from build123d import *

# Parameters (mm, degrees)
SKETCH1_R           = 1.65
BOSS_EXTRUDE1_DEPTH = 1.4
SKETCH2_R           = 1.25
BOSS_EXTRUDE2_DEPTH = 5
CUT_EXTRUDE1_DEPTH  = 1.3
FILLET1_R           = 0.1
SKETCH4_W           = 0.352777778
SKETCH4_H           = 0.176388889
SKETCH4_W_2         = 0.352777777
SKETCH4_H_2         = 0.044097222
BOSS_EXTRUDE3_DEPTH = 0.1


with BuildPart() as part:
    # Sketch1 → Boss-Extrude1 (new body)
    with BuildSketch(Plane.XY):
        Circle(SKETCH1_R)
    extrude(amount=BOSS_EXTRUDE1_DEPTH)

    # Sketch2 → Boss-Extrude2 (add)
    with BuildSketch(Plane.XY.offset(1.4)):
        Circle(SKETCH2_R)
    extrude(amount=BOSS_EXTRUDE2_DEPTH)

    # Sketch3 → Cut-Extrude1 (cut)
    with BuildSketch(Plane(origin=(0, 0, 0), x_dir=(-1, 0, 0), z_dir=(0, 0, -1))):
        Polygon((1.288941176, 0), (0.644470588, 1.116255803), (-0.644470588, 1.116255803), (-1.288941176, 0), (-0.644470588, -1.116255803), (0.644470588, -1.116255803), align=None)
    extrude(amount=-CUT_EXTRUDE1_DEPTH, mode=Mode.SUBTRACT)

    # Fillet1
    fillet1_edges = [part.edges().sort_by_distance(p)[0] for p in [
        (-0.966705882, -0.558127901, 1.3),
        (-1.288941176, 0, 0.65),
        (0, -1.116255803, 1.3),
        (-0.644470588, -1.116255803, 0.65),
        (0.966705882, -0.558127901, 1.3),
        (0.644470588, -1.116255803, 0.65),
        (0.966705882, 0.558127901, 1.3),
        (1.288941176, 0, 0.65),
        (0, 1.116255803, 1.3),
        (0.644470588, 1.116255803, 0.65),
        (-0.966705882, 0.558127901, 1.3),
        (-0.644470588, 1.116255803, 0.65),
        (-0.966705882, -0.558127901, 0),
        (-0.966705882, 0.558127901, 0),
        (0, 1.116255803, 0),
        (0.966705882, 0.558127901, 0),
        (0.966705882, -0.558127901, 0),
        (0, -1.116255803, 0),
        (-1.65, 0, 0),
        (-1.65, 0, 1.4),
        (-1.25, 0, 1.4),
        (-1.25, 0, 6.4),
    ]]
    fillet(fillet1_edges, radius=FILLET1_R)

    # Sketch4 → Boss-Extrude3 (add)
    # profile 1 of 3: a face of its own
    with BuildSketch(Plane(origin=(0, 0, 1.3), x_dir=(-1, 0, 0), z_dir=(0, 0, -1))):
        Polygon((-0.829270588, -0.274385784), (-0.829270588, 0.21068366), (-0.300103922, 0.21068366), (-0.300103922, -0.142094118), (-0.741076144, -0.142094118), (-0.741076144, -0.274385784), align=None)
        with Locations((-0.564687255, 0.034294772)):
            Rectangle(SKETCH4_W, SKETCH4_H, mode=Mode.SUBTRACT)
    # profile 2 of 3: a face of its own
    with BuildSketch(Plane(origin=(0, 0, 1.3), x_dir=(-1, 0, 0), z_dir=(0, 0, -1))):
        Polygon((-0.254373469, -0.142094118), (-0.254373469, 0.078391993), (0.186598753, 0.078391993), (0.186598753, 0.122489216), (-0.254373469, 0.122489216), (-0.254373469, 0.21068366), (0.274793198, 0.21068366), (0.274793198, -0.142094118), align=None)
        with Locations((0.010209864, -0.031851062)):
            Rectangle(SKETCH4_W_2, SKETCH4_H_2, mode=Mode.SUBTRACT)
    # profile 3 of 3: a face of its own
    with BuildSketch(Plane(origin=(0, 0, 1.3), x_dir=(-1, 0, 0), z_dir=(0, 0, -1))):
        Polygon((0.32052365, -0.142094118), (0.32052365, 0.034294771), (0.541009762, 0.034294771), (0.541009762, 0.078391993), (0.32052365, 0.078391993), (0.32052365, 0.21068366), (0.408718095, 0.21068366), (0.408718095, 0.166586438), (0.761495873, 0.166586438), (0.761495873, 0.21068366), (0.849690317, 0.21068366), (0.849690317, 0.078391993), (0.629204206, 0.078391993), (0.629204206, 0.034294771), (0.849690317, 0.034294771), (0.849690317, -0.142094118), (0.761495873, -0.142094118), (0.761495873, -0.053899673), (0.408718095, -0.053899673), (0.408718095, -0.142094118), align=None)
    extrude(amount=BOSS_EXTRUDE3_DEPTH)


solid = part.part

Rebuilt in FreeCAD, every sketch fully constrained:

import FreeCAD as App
import Part
import Sketcher
from FreeCAD import Vector
Q = App.Units.Quantity


def add_polygon(sketch, points):
    """Adds a closed chain of lines whose ends are joined by coincident constraints."""
    first, n = sketch.GeometryCount, len(points)
    for a, b in zip(points, points[1:] + points[:1]):
        sketch.addGeometry(Part.LineSegment(App.Vector(*a, 0), App.Vector(*b, 0)), False)
    for i in range(n):
        sketch.addConstraint(Sketcher.Constraint("Coincident", first + i, 2, first + (i + 1) % n, 1))

doc = App.newDocument("Part")
params = doc.addObject("Spreadsheet::Sheet", "Params")
for row, (alias, value) in enumerate([
    ("sketch1_diameter", "3.3 mm"),
    ("pad1_length", "1.4 mm"),
    ("sketch2_diameter", "2.5 mm"),
    ("pad2_length", "5 mm"),
    ("pocket1_length", "1.3 mm"),
    ("fillet_radius", "0.1 mm"),
    ("pad3_length", "0.1 mm"),
], start=1):
    params.set(f"A{row}", alias)
    params.set(f"B{row}", "=" + value)
    params.setAlias(f"B{row}", alias)

body = doc.addObject("PartDesign::Body", "Body")

# Sketch on XY plane
sketch1 = body.newObject("Sketcher::SketchObject", "Sketch")
sketch1.AttachmentSupport = (doc.getObject("XY_Plane"), [""])
sketch1.MapMode = "FlatFace"
sketch1.addGeometry(Part.Circle(Vector(0, 0, 0), Vector(0, 0, 1), 1.6), False)
sketch1.addConstraint([
    Sketcher.Constraint("Coincident", 0, 3, -1, 1),
    Sketcher.Constraint("Diameter", 0, Q("3.3 mm")),
])
sketch1.setExpression("Constraints[1]", "Params.sketch1_diameter")
pad1 = body.newObject("PartDesign::Pad", "Pad")
pad1.Profile = sketch1
pad1.setExpression("Length", "Params.pad1_length")

# Sketch on XY plane
sketch2 = body.newObject("Sketcher::SketchObject", "Sketch001")
sketch2.AttachmentSupport = (doc.getObject("XY_Plane"), [""])
sketch2.MapMode = "FlatFace"
sketch2.AttachmentOffset = App.Placement(Vector(0, 0, 1.4), App.Rotation())
sketch2.addGeometry(Part.Circle(Vector(0, 0, 0), Vector(0, 0, 1), 1.2), False)
sketch2.addConstraint([
    Sketcher.Constraint("Coincident", 0, 3, -1, 1),
    Sketcher.Constraint("Diameter", 0, Q("2.5 mm")),
])
sketch2.setExpression("Constraints[1]", "Params.sketch2_diameter")
pad2 = body.newObject("PartDesign::Pad", "Pad001")
pad2.Profile = sketch2
pad2.setExpression("Length", "Params.pad2_length")

# Sketch on XY plane
sketch3 = body.newObject("Sketcher::SketchObject", "Sketch002")
sketch3.AttachmentSupport = (doc.getObject("XY_Plane"), [""])
sketch3.MapMode = "FlatFace"
add_polygon(sketch3, [(-1.3, 0), (-0.6, 1.1), (0.6, 1.1), (1.3, 0), (0.6, -1.1), (-0.6, -1.1)])  # lines 0-5
sketch3.addConstraint([
    Sketcher.Constraint("Horizontal", 1),
    Sketcher.Constraint("Horizontal", 4),
    Sketcher.Constraint("Symmetric", 0, 2, 3, 2, -1, 1),
    Sketcher.Constraint("Symmetric", 2, 2, 5, 2, -1, 1),
    Sketcher.Constraint("PointOnObject", 2, 2, -1),
    Sketcher.Constraint("Parallel", 2, 5),
    Sketcher.Constraint("Vertical", 1, 2, 3, 2),
    Sketcher.Constraint("Angle", 0, Q("60 deg")),
    Sketcher.Constraint("DistanceX", 1, 1, 1, 2, Q("1.288941 mm")),
    Sketcher.Constraint("Distance", 0, Q("1.288941 mm")),
])
pocket1 = body.newObject("PartDesign::Pocket", "Pocket")
pocket1.Profile = sketch3
pocket1.setExpression("Length", "Params.pocket1_length")
pocket1.Reversed = True
doc.recompute()

fillet = body.newObject("PartDesign::Fillet", "Fillet")
fillet.Base = (pocket1, ["Edge1"])
fillet.UseAllEdges = True
fillet.setExpression("Radius", "Params.fillet_radius")

# Sketch on XY plane
sketch4 = body.newObject("Sketcher::SketchObject", "Sketch003")
sketch4.AttachmentSupport = (doc.getObject("XY_Plane"), [""])
sketch4.MapMode = "FlatFace"
sketch4.AttachmentOffset = App.Placement(Vector(0, 0, 1.3), App.Rotation())
add_polygon(sketch4, [(0.829, 0.211), (0.829, -0.274), (0.741, -0.274), (0.741, -0.142), (0.3, -0.142), (0.3, 0.211)])  # lines 0-5
add_polygon(sketch4, [(0.741, -0.054), (0.741, 0.122), (0.388, 0.122), (0.388, -0.054)])  # lines 6-9
add_polygon(sketch4, [(0.254, 0.078), (0.254, -0.142), (-0.275, -0.142), (-0.275, 0.211), (0.254, 0.211), (0.254, 0.122), (-0.187, 0.122), (-0.187, 0.078)])  # lines 10-17
add_polygon(sketch4, [(0.166, -0.054), (0.166, -0.01), (-0.187, -0.01), (-0.187, -0.054)])  # lines 18-21
add_polygon(sketch4, [(-0.321, 0.034), (-0.321, -0.142), (-0.409, -0.142), (-0.409, -0.054), (-0.761, -0.054), (-0.761, -0.142), (-0.85, -0.142), (-0.85, 0.034), (-0.629, 0.034), (-0.629, 0.078), (-0.85, 0.078), (-0.85, 0.211), (-0.761, 0.211), (-0.761, 0.167), (-0.409, 0.167), (-0.409, 0.211), (-0.321, 0.211), (-0.321, 0.078), (-0.541, 0.078), (-0.541, 0.034)])  # lines 22-41
sketch4.addConstraint([
    Sketcher.Constraint("Vertical", 0),
    Sketcher.Constraint("Horizontal", 1),
    Sketcher.Constraint("Vertical", 2),
    Sketcher.Constraint("Horizontal", 3),
    Sketcher.Constraint("Vertical", 4),
    Sketcher.Constraint("Horizontal", 5),
    Sketcher.Constraint("Vertical", 6),
    Sketcher.Constraint("Horizontal", 7),
    Sketcher.Constraint("Vertical", 8),
    Sketcher.Constraint("Horizontal", 9),
    Sketcher.Constraint("Vertical", 10),
    Sketcher.Constraint("Horizontal", 11),
    Sketcher.Constraint("Vertical", 12),
    Sketcher.Constraint("Horizontal", 13),
    Sketcher.Constraint("Vertical", 14),
    Sketcher.Constraint("Horizontal", 15),
    Sketcher.Constraint("Vertical", 16),
    Sketcher.Constraint("Horizontal", 17),
    Sketcher.Constraint("Vertical", 18),
    Sketcher.Constraint("Horizontal", 19),
    Sketcher.Constraint("Vertical", 20),
    Sketcher.Constraint("Horizontal", 21),
    Sketcher.Constraint("Vertical", 22),
    Sketcher.Constraint("Horizontal", 23),
    Sketcher.Constraint("Vertical", 24),
    Sketcher.Constraint("Horizontal", 25),
    Sketcher.Constraint("Vertical", 26),
    Sketcher.Constraint("Horizontal", 27),
    Sketcher.Constraint("Vertical", 28),
    Sketcher.Constraint("Horizontal", 29),
    Sketcher.Constraint("Vertical", 30),
    Sketcher.Constraint("Horizontal", 31),
    Sketcher.Constraint("Vertical", 32),
    Sketcher.Constraint("Horizontal", 33),
    Sketcher.Constraint("Vertical", 34),
    Sketcher.Constraint("Horizontal", 35),
    Sketcher.Constraint("Vertical", 36),
    Sketcher.Constraint("Horizontal", 37),
    Sketcher.Constraint("Vertical", 38),
    Sketcher.Constraint("Horizontal", 39),
    Sketcher.Constraint("Vertical", 40),
    Sketcher.Constraint("Horizontal", 41),
    Sketcher.Constraint("Horizontal", 3, 2, 10, 2),
    Sketcher.Constraint("Horizontal", 5, 2, 12, 2),
    Sketcher.Constraint("Horizontal", 7, 2, 14, 2),
    Sketcher.Constraint("Horizontal", 9, 2, 20, 2),
    Sketcher.Constraint("Horizontal", 11, 2, 22, 2),
    Sketcher.Constraint("Horizontal", 21, 2, 24, 2),
    Sketcher.Constraint("Horizontal", 23, 2, 26, 2),
    Sketcher.Constraint("Horizontal", 17, 2, 30, 2),
    Sketcher.Constraint("Horizontal", 13, 2, 32, 2),
    Sketcher.Constraint("Horizontal", 33, 2, 36, 2),
    Sketcher.Constraint("Horizontal", 31, 2, 38, 2),
    Sketcher.Constraint("Horizontal", 29, 2, 40, 2),
    Sketcher.Constraint("Vertical", 2, 2, 6, 2),
    Sketcher.Constraint("Vertical", 10, 2, 13, 2),
    Sketcher.Constraint("Vertical", 16, 2, 19, 2),
    Sketcher.Constraint("Vertical", 28, 2, 31, 2),
    Sketcher.Constraint("Vertical", 26, 2, 33, 2),
    Sketcher.Constraint("Vertical", 24, 2, 35, 2),
    Sketcher.Constraint("Vertical", 22, 2, 37, 2),
    Sketcher.Constraint("Equal", 5, 11),
    Sketcher.Constraint("Equal", 3, 15),
    Sketcher.Constraint("Equal", 9, 19),
    Sketcher.Constraint("Equal", 1, 23),
    Sketcher.Constraint("Equal", 21, 25),
    Sketcher.Constraint("Equal", 23, 27),
    Sketcher.Constraint("Equal", 31, 39),
    Sketcher.Constraint("Equal", 35, 4),
    Sketcher.Constraint("Equal", 41, 10),
    Sketcher.Constraint("Equal", 37, 14),
    Sketcher.Constraint("Equal", 16, 18),
    Sketcher.Constraint("Equal", 8, 22),
    Sketcher.Constraint("Equal", 14, 24),
    Sketcher.Constraint("Equal", 20, 30),
    Sketcher.Constraint("Equal", 2, 32),
    Sketcher.Constraint("Equal", 30, 34),
    Sketcher.Constraint("DistanceY", 0, 2, 0, 1, Q("0.485069 mm")),
    Sketcher.Constraint("DistanceY", 2, 1, 2, 2, Q("0.132292 mm")),
    Sketcher.Constraint("DistanceX", -1, 1, 7, 2, Q("0.388298 mm")),
    Sketcher.Constraint("DistanceY", 8, 2, -1, 1, Q("0.0539 mm")),
    Sketcher.Constraint("DistanceX", 15, 2, -1, 1, Q("0.186599 mm")),
    Sketcher.Constraint("DistanceX", 3, 2, 3, 1, Q("0.440972 mm")),
    Sketcher.Constraint("DistanceX", 23, 2, -1, 1, Q("0.408718 mm")),
])
pad3 = body.newObject("PartDesign::Pad", "Pad002")
pad3.Profile = sketch4
pad3.setExpression("Length", "Params.pad3_length")
pad3.Reversed = True

doc.recompute()
